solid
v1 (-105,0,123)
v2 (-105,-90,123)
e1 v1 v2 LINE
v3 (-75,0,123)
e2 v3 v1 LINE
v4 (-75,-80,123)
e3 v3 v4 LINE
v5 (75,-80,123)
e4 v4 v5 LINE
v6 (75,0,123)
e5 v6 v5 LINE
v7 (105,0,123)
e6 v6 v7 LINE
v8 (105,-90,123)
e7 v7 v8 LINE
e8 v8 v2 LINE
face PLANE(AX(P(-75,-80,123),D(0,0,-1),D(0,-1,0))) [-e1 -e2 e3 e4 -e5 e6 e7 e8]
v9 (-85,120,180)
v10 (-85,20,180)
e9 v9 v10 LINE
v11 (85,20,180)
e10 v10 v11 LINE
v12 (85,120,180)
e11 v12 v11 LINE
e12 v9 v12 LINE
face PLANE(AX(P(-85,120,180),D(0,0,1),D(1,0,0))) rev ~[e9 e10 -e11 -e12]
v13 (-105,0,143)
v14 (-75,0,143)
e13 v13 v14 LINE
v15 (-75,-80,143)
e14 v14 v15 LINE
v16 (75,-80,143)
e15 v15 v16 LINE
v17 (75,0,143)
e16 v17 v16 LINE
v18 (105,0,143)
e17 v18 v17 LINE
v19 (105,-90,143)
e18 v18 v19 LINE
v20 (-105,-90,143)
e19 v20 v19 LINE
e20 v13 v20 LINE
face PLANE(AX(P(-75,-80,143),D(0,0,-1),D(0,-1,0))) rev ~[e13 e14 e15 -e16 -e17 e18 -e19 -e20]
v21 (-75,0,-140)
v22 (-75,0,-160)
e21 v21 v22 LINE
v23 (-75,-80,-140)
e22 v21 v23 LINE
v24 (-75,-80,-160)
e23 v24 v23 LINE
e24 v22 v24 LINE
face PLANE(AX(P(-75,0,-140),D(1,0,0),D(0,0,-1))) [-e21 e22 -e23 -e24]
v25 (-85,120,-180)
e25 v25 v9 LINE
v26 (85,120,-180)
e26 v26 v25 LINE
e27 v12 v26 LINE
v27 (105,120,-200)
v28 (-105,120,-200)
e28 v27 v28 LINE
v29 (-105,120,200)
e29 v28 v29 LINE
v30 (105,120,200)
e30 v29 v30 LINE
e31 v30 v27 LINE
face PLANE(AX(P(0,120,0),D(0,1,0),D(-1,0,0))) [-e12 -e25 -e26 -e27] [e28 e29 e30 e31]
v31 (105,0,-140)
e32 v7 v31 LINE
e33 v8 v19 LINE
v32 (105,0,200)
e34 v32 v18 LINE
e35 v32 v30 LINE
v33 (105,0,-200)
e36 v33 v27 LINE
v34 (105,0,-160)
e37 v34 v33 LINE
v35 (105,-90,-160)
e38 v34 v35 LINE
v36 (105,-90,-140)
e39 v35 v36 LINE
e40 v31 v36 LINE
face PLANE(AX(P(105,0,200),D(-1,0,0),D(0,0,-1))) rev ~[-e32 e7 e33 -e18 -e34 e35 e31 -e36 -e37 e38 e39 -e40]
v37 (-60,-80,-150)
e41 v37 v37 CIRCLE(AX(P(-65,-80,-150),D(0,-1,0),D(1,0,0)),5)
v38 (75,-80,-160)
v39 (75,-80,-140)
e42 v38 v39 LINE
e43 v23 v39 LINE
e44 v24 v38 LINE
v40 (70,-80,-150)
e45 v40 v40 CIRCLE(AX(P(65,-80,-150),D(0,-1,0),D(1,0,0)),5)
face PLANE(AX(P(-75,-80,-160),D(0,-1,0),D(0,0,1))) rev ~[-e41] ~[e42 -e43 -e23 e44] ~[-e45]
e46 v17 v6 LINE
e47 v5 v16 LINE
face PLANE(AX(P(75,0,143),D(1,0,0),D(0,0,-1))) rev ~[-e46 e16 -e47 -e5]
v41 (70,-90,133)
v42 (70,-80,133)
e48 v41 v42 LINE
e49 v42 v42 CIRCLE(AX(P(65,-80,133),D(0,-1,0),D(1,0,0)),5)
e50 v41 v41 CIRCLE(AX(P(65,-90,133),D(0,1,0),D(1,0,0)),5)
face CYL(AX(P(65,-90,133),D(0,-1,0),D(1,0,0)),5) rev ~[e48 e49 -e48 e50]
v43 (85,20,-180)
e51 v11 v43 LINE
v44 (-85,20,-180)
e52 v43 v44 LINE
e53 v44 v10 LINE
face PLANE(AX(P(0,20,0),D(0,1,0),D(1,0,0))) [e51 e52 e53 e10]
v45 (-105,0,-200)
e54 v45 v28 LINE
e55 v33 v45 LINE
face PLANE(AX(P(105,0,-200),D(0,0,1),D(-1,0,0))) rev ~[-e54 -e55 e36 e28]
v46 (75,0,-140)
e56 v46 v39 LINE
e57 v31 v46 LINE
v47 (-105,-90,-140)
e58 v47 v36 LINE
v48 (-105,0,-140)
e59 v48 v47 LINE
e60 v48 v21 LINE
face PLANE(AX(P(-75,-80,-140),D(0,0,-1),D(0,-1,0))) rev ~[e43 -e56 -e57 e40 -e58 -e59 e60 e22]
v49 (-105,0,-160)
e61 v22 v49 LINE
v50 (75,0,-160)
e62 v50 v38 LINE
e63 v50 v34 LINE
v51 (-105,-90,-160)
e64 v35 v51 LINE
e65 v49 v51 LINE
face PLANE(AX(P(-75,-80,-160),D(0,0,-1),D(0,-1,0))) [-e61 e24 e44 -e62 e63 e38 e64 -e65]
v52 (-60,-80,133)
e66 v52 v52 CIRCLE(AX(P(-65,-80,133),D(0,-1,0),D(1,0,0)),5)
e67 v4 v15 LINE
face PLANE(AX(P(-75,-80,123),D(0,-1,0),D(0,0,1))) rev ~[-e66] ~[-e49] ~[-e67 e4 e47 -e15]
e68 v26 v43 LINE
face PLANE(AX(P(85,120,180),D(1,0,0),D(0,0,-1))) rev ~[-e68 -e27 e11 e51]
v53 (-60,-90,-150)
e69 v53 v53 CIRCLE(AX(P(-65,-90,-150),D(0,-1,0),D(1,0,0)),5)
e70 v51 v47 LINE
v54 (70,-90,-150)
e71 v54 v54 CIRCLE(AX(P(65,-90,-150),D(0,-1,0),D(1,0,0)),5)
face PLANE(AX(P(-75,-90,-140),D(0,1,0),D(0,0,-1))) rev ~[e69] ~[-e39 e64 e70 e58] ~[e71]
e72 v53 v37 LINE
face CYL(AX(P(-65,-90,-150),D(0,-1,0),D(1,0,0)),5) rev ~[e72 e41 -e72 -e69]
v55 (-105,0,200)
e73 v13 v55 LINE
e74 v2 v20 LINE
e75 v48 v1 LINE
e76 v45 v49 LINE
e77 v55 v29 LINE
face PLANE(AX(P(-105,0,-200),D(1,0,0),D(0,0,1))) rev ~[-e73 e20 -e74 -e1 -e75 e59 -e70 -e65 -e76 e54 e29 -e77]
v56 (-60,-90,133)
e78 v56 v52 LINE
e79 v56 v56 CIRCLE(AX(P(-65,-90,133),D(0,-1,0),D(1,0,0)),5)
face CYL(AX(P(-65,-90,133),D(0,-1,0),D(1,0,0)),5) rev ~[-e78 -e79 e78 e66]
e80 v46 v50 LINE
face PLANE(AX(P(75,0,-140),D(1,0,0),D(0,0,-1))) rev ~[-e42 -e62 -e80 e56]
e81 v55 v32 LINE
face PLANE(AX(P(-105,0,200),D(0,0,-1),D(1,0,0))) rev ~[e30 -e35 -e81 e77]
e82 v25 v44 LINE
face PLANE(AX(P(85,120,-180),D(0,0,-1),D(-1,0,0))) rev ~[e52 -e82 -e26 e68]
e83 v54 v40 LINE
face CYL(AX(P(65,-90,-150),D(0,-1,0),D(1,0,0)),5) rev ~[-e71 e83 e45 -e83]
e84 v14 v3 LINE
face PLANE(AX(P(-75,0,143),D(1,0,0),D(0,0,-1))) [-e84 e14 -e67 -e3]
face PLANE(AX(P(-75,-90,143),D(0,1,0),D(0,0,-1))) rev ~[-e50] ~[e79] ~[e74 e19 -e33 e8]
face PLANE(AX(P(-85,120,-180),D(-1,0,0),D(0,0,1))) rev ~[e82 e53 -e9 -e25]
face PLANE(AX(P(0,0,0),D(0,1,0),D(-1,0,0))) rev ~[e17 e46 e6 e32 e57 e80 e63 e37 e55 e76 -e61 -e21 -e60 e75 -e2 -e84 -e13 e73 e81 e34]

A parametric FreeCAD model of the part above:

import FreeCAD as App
import Part
import Sketcher
from FreeCAD import Vector


def add_polygon(sketch, points):
    """Adds a closed chain of lines whose ends are joined by coincident constraints."""
    first, n = sketch.GeometryCount, len(points)
    for a, b in zip(points, points[1:] + points[:1]):
        sketch.addGeometry(Part.LineSegment(App.Vector(*a, 0), App.Vector(*b, 0)), False)
    for i in range(n):
        sketch.addConstraint(Sketcher.Constraint("Coincident", first + i, 2, first + (i + 1) % n, 1))

doc = App.newDocument("Part")
body = doc.addObject("PartDesign::Body", "Body")

# Sketch on XZ plane
sketch1 = doc.addObject("Sketcher::SketchObject", "Sketch")
body.addObject(sketch1)
sketch1.AttachmentSupport = (doc.XZ_Plane, [""])
sketch1.MapMode = "FlatFace"
add_polygon(sketch1, [(-105, -200), (-105, 200), (105, 200), (105, -200)])  # lines 0-3
sketch1.addConstraint([
    Sketcher.Constraint("Vertical", 0),
    Sketcher.Constraint("Horizontal", 1),
    Sketcher.Constraint("Vertical", 2),
    Sketcher.Constraint("Horizontal", 3),
    Sketcher.Constraint("Symmetric", 0, 2, 2, 2, -1, 1),
    Sketcher.Constraint("DistanceX", 1, 1, 1, 2, 210.0),
    Sketcher.Constraint("DistanceY", 0, 1, 0, 2, 400.0),
])
pad1 = doc.addObject("PartDesign::Pad", "Pad")
body.addObject(pad1)
pad1.Profile = sketch1
pad1.Length = 120
pad1.Reversed = True

# Sketch on XZ plane
sketch2 = doc.addObject("Sketcher::SketchObject", "Sketch001")
body.addObject(sketch2)
sketch2.AttachmentSupport = (doc.XZ_Plane, [""])
sketch2.MapMode = "FlatFace"
sketch2.AttachmentOffset = App.Placement(Vector(0, 0, -120), App.Rotation())
add_polygon(sketch2, [(-85, -180), (-85, 180), (85, 180), (85, -180)])  # lines 0-3
sketch2.addConstraint([
    Sketcher.Constraint("Vertical", 0),
    Sketcher.Constraint("Horizontal", 1),
    Sketcher.Constraint("Vertical", 2),
    Sketcher.Constraint("Horizontal", 3),
    Sketcher.Constraint("Symmetric", 0, 2, 2, 2, -1, 1),
    Sketcher.Constraint("DistanceX", 1, 1, 1, 2, 170.0),
    Sketcher.Constraint("DistanceY", 0, 1, 0, 2, 360.0),
])
pocket1 = doc.addObject("PartDesign::Pocket", "Pocket")
body.addObject(pocket1)
pocket1.Profile = sketch2
pocket1.Length = 100
pocket1.Reversed = True

# Sketch on XZ plane
sketch3 = doc.addObject("Sketcher::SketchObject", "Sketch002")
body.addObject(sketch3)
sketch3.AttachmentSupport = (doc.XZ_Plane, [""])
sketch3.MapMode = "FlatFace"
add_polygon(sketch3, [(105, 123), (105, 143), (75, 143), (75, 123)])  # lines 0-3
add_polygon(sketch3, [(105, -160), (105, -140), (75, -140), (75, -160)])  # lines 4-7
add_polygon(sketch3, [(-75, 143), (-105, 143), (-105, 123), (-75, 123)])  # lines 8-11
add_polygon(sketch3, [(-75, -140), (-105, -140), (-105, -160), (-75, -160)])  # lines 12-15
sketch3.addConstraint([
    Sketcher.Constraint("Vertical", 0),
    Sketcher.Constraint("Horizontal", 1),
    Sketcher.Constraint("Vertical", 2),
    Sketcher.Constraint("Horizontal", 3),
    Sketcher.Constraint("Vertical", 4),
    Sketcher.Constraint("Horizontal", 5),
    Sketcher.Constraint("Vertical", 6),
    Sketcher.Constraint("Horizontal", 7),
    Sketcher.Constraint("Horizontal", 8),
    Sketcher.Constraint("Vertical", 9),
    Sketcher.Constraint("Horizontal", 10),
    Sketcher.Constraint("Vertical", 11),
    Sketcher.Constraint("Horizontal", 12),
    Sketcher.Constraint("Vertical", 13),
    Sketcher.Constraint("Horizontal", 14),
    Sketcher.Constraint("Vertical", 15),
    Sketcher.Constraint("Symmetric", 0, 2, 8, 2, -2),
    Sketcher.Constraint("Symmetric", 2, 2, 10, 2, -2),
    Sketcher.Constraint("Symmetric", 4, 2, 12, 2, -2),
    Sketcher.Constraint("Symmetric", 6, 2, 14, 2, -2),
    Sketcher.Constraint("Vertical", 3, 2, 4, 2),
    Sketcher.Constraint("Vertical", 2, 2, 5, 2),
    Sketcher.Constraint("Equal", 2, 4),
    Sketcher.Constraint("DistanceY", 0, 1, 0, 2, 20.0),
    Sketcher.Constraint("DistanceX", 1, 2, 1, 1, 30.0),
    Sketcher.Constraint("DistanceX", -1, 1, 0, 2, 105.0),
    Sketcher.Constraint("DistanceY", -1, 1, 0, 2, 143.0),
    Sketcher.Constraint("DistanceY", 4, 2, -1, 1, 140.0),
])
pad2 = doc.addObject("PartDesign::Pad", "Pad001")
body.addObject(pad2)
pad2.Profile = sketch3
pad2.Length = 90

# Sketch on YZ plane
sketch4 = doc.addObject("Sketcher::SketchObject", "Sketch003")
body.addObject(sketch4)
sketch4.AttachmentSupport = (doc.YZ_Plane, [""])
sketch4.MapMode = "FlatFace"
sketch4.AttachmentOffset = App.Placement(Vector(0, 0, -75), App.Rotation())
add_polygon(sketch4, [(-80, 123), (-80, 143), (-90, 143), (-90, 123)])  # lines 0-3
sketch4.addConstraint([
    Sketcher.Constraint("Vertical", 0),
    Sketcher.Constraint("Horizontal", 1),
    Sketcher.Constraint("Vertical", 2),
    Sketcher.Constraint("Horizontal", 3),
    Sketcher.Constraint("DistanceX", 1, 2, 1, 1, 10.0),
    Sketcher.Constraint("DistanceY", 0, 1, 0, 2, 20.0),
    Sketcher.Constraint("DistanceX", 0, 2, -1, 1, 80.0),
    Sketcher.Constraint("DistanceY", -1, 1, 0, 2, 143.0),
])
pad3 = doc.addObject("PartDesign::Pad", "Pad002")
body.addObject(pad3)
pad3.Profile = sketch4
pad3.Length = 150

# Sketch on YZ plane
sketch5 = doc.addObject("Sketcher::SketchObject", "Sketch004")
body.addObject(sketch5)
sketch5.AttachmentSupport = (doc.YZ_Plane, [""])
sketch5.MapMode = "FlatFace"
sketch5.AttachmentOffset = App.Placement(Vector(0, 0, -75), App.Rotation())
add_polygon(sketch5, [(-80, -160), (-80, -140), (-90, -140), (-90, -160)])  # lines 0-3
sketch5.addConstraint([
    Sketcher.Constraint("Vertical", 0),
    Sketcher.Constraint("Horizontal", 1),
    Sketcher.Constraint("Vertical", 2),
    Sketcher.Constraint("Horizontal", 3),
    Sketcher.Constraint("DistanceX", 1, 2, 1, 1, 10.0),
    Sketcher.Constraint("DistanceY", 0, 1, 0, 2, 20.0),
    Sketcher.Constraint("DistanceX", 0, 2, -1, 1, 80.0),
    Sketcher.Constraint("DistanceY", 0, 2, -1, 1, 140.0),
])
pad4 = doc.addObject("PartDesign::Pad", "Pad003")
body.addObject(pad4)
pad4.Profile = sketch5
pad4.Length = 150

# Sketch on XZ plane
sketch6 = doc.addObject("Sketcher::SketchObject", "Sketch005")
body.addObject(sketch6)
sketch6.AttachmentSupport = (doc.XZ_Plane, [""])
sketch6.MapMode = "FlatFace"
sketch6.AttachmentOffset = App.Placement(Vector(0, 0, 90), App.Rotation())
sketch6.addGeometry([
    Part.Circle(Vector(-65, 133, 0), Vector(0, 0, 1), 5),
    Part.Circle(Vector(65, 133, 0), Vector(0, 0, 1), 5),
], False)
sketch6.addConstraint([
    Sketcher.Constraint("Equal", 0, 1),
    Sketcher.Constraint("Symmetric", 0, 3, 1, 3, -2),
    Sketcher.Constraint("Diameter", 0, 10.0),
    Sketcher.Constraint("DistanceX", 0, 3, -1, 1, 65.0),
    Sketcher.Constraint("DistanceY", -1, 1, 0, 3, 133.0),
])
pocket2 = doc.addObject("PartDesign::Pocket", "Pocket001")
body.addObject(pocket2)
pocket2.Profile = sketch6
pocket2.Length = 20

# Sketch on XZ plane
sketch7 = doc.addObject("Sketcher::SketchObject", "Sketch006")
body.addObject(sketch7)
sketch7.AttachmentSupport = (doc.XZ_Plane, [""])
sketch7.MapMode = "FlatFace"
sketch7.AttachmentOffset = App.Placement(Vector(0, 0, 90), App.Rotation())
sketch7.addGeometry([
    Part.Circle(Vector(-65, -150, 0), Vector(0, 0, 1), 5),
    Part.Circle(Vector(65, -150, 0), Vector(0, 0, 1), 5),
], False)
sketch7.addConstraint([
    Sketcher.Constraint("Equal", 0, 1),
    Sketcher.Constraint("Symmetric", 0, 3, 1, 3, -2),
    Sketcher.Constraint("Diameter", 0, 10.0),
    Sketcher.Constraint("DistanceX", 0, 3, -1, 1, 65.0),
    Sketcher.Constraint("DistanceY", 0, 3, -1, 1, 150.0),
])
pocket3 = doc.addObject("PartDesign::Pocket", "Pocket002")
body.addObject(pocket3)
pocket3.Profile = sketch7
pocket3.Length = 20

doc.recompute()
